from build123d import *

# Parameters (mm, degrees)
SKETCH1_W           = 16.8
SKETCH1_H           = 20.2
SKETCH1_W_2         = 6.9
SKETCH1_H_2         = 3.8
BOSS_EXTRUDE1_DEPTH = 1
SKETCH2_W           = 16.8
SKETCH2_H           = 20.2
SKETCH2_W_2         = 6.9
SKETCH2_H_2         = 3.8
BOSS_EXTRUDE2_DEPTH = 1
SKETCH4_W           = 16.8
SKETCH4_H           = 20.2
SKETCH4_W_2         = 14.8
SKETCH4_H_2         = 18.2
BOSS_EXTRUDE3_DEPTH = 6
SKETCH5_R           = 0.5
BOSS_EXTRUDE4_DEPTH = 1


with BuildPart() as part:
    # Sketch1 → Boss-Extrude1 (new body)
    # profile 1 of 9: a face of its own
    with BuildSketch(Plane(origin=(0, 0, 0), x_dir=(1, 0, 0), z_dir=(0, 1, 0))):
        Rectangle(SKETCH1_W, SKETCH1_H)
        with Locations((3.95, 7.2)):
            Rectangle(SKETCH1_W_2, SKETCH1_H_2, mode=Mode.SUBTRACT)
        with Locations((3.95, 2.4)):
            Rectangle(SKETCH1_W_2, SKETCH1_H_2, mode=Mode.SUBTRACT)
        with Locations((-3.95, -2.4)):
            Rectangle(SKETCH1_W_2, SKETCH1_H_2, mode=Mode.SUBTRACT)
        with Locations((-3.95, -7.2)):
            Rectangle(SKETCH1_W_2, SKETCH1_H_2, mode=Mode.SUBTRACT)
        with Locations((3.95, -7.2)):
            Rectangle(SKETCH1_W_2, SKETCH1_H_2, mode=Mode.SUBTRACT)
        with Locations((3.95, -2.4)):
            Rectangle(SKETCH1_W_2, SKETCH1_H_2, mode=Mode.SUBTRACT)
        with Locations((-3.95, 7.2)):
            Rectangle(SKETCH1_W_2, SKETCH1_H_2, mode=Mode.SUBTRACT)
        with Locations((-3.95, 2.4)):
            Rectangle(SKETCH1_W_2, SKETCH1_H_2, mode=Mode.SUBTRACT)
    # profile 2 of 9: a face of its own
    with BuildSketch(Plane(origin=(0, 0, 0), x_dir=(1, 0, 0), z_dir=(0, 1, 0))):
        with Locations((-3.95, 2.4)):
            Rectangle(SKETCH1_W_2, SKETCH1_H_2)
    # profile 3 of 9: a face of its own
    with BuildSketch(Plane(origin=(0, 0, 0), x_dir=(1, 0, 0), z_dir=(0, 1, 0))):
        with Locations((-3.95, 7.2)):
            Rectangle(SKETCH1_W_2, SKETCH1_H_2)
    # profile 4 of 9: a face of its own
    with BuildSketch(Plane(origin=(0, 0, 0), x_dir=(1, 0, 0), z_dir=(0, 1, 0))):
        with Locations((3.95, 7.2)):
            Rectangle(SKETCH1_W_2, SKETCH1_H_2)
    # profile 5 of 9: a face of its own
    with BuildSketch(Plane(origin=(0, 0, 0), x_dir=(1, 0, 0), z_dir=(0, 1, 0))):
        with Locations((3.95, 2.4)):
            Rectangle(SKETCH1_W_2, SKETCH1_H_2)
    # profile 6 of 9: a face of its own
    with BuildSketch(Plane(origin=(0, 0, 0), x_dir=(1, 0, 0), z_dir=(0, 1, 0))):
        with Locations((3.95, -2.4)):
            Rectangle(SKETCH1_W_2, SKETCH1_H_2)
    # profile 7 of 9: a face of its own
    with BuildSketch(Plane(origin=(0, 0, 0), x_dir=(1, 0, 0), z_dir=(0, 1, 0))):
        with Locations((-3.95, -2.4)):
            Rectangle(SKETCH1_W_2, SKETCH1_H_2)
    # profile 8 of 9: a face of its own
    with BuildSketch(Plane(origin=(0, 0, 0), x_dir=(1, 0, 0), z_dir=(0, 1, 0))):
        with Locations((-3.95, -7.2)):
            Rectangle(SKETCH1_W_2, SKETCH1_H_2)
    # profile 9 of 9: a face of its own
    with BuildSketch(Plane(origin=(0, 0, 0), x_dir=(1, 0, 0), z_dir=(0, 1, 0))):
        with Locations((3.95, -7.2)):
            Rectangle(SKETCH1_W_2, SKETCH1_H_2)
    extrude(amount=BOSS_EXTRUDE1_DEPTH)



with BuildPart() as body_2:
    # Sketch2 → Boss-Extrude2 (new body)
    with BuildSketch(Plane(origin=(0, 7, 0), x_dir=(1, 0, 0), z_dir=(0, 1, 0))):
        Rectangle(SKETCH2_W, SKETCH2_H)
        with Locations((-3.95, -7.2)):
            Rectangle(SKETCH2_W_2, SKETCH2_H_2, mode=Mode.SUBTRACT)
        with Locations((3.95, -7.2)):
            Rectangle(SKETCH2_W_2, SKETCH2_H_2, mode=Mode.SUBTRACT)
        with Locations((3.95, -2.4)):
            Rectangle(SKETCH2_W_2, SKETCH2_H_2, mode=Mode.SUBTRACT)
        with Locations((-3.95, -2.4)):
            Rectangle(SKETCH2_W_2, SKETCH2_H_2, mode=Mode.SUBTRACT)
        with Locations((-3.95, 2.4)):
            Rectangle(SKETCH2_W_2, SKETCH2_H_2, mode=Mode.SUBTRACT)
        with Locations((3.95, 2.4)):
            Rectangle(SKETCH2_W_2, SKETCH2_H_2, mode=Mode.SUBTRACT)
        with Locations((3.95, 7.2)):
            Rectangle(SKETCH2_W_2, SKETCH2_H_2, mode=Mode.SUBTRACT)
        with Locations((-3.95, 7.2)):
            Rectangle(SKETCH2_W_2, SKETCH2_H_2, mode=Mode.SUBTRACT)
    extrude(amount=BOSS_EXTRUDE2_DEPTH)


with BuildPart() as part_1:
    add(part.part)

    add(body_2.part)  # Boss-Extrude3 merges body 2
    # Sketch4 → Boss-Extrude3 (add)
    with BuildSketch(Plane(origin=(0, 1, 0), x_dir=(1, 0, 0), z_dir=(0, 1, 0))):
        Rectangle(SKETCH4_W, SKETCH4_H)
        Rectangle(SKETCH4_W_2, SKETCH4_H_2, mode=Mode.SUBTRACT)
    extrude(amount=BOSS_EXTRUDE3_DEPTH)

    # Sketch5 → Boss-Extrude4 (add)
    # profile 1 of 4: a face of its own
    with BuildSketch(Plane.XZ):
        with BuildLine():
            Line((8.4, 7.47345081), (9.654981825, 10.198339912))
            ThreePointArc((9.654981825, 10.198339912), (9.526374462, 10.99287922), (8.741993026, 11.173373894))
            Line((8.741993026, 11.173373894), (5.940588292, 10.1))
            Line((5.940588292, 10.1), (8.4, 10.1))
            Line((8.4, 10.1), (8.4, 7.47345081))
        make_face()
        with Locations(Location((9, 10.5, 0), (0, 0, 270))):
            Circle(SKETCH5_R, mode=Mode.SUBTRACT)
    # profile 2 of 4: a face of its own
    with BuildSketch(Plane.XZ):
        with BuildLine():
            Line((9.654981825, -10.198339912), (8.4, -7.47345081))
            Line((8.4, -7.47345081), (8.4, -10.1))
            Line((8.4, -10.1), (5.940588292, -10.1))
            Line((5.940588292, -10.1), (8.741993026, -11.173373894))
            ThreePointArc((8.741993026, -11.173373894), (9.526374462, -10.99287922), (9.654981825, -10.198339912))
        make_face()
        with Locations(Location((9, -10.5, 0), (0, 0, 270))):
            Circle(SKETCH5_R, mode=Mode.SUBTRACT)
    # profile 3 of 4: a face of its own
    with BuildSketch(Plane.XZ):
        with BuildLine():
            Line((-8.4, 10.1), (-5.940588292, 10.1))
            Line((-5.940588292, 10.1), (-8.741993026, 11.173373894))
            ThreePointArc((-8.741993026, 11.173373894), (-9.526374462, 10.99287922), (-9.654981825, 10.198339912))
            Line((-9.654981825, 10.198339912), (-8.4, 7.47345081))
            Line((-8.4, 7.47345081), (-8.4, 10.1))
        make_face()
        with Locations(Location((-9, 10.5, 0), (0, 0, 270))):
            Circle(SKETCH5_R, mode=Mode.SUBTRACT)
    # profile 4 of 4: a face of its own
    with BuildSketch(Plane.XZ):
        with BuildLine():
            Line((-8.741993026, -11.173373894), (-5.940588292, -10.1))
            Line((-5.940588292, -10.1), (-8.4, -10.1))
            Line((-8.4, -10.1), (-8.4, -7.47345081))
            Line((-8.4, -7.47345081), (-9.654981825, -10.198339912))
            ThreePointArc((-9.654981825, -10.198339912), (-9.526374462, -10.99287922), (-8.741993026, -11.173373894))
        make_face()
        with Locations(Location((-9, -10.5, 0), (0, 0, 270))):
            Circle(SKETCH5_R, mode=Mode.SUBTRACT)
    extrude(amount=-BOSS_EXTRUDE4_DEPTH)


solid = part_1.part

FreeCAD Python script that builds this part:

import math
import FreeCAD as App
import Part
import Sketcher

doc = App.newDocument("Part")
body = doc.addObject("PartDesign::Body", "Body")

sketch1 = body.newObject("Sketcher::SketchObject", "Sketch")
sketch1.AttachmentSupport = (doc.getObject("XZ_Plane"), [""])
sketch1.MapMode = "FlatFace"
sketch1.addGeometry([
    Part.LineSegment(App.Vector(-8, -10, 0), App.Vector(-8, 10, 0)),
    Part.LineSegment(App.Vector(-8, 10, 0), App.Vector(8, 10, 0)),
    Part.LineSegment(App.Vector(8, 10, 0), App.Vector(8, -10, 0)),
    Part.LineSegment(App.Vector(8, -10, 0), App.Vector(-8, -10, 0)),
], False)
sketch1.addConstraint([
    Sketcher.Constraint("Coincident", 0, 2, 1, 1),
    Sketcher.Constraint("Coincident", 1, 2, 2, 1),
    Sketcher.Constraint("Coincident", 2, 2, 3, 1),
    Sketcher.Constraint("Coincident", 3, 2, 0, 1),
    Sketcher.Constraint("Vertical", 0),
    Sketcher.Constraint("Horizontal", 1),
    Sketcher.Constraint("Vertical", 2),
    Sketcher.Constraint("Horizontal", 3),
    Sketcher.Constraint("Symmetric", 0, 2, 2, 2, -1, 1),
    Sketcher.Constraint("DistanceX", 1, 1, 1, 2, 16.8),
    Sketcher.Constraint("DistanceY", 0, 1, 0, 2, 20.2),
])
pad1 = body.newObject("PartDesign::Pad", "Pad")
pad1.Profile = sketch1
pad1.Length = 1
pad1.Reversed = True
body2 = doc.addObject("PartDesign::Body", "Body001")

sketch2 = body2.newObject("Sketcher::SketchObject", "Sketch001")
sketch2.AttachmentSupport = (doc.getObject("XZ_Plane001"), [""])
sketch2.MapMode = "FlatFace"
sketch2.AttachmentOffset = App.Placement(App.Vector(0, 0, -7), App.Rotation())
sketch2.addGeometry([
    Part.LineSegment(App.Vector(-8.4, -10.1, 0), App.Vector(-8.4, 10.1, 0)),
    Part.LineSegment(App.Vector(-8.4, 10.1, 0), App.Vector(8.4, 10.1, 0)),
    Part.LineSegment(App.Vector(8.4, 10.1, 0), App.Vector(8.4, -10.1, 0)),
    Part.LineSegment(App.Vector(8.4, -10.1, 0), App.Vector(-8.4, -10.1, 0)),
    Part.LineSegment(App.Vector(-0.5, 9.1, 0), App.Vector(-7.4, 9.1, 0)),
    Part.LineSegment(App.Vector(-7.4, 9.1, 0), App.Vector(-7.4, 5.3, 0)),
    Part.LineSegment(App.Vector(-7.4, 5.3, 0), App.Vector(-0.5, 5.3, 0)),
    Part.LineSegment(App.Vector(-0.5, 5.3, 0), App.Vector(-0.5, 9.1, 0)),
    Part.LineSegment(App.Vector(-0.5, 4.3, 0), App.Vector(-7.4, 4.3, 0)),
    Part.LineSegment(App.Vector(-7.4, 4.3, 0), App.Vector(-7.4, 0.5, 0)),
    Part.LineSegment(App.Vector(-7.4, 0.5, 0), App.Vector(-0.5, 0.5, 0)),
    Part.LineSegment(App.Vector(-0.5, 0.5, 0), App.Vector(-0.5, 4.3, 0)),
    Part.LineSegment(App.Vector(7.4, 9.1, 0), App.Vector(0.5, 9.1, 0)),
    Part.LineSegment(App.Vector(0.5, 9.1, 0), App.Vector(0.5, 5.3, 0)),
    Part.LineSegment(App.Vector(0.5, 5.3, 0), App.Vector(7.4, 5.3, 0)),
    Part.LineSegment(App.Vector(7.4, 5.3, 0), App.Vector(7.4, 9.1, 0)),
    Part.LineSegment(App.Vector(7.4, 4.3, 0), App.Vector(0.5, 4.3, 0)),
    Part.LineSegment(App.Vector(0.5, 4.3, 0), App.Vector(0.5, 0.5, 0)),
    Part.LineSegment(App.Vector(0.5, 0.5, 0), App.Vector(7.4, 0.5, 0)),
    Part.LineSegment(App.Vector(7.4, 0.5, 0), App.Vector(7.4, 4.3, 0)),
    Part.LineSegment(App.Vector(-0.5, -0.5, 0), App.Vector(-7.4, -0.5, 0)),
    Part.LineSegment(App.Vector(-7.4, -0.5, 0), App.Vector(-7.4, -4.3, 0)),
    Part.LineSegment(App.Vector(-7.4, -4.3, 0), App.Vector(-0.5, -4.3, 0)),
    Part.LineSegment(App.Vector(-0.5, -4.3, 0), App.Vector(-0.5, -0.5, 0)),
    Part.LineSegment(App.Vector(-0.5, -5.3, 0), App.Vector(-7.4, -5.3, 0)),
    Part.LineSegment(App.Vector(-7.4, -5.3, 0), App.Vector(-7.4, -9.1, 0)),
    Part.LineSegment(App.Vector(-7.4, -9.1, 0), App.Vector(-0.5, -9.1, 0)),
    Part.LineSegment(App.Vector(-0.5, -9.1, 0), App.Vector(-0.5, -5.3, 0)),
    Part.LineSegment(App.Vector(7.4, -0.5, 0), App.Vector(0.5, -0.5, 0)),
    Part.LineSegment(App.Vector(0.5, -0.5, 0), App.Vector(0.5, -4.3, 0)),
    Part.LineSegment(App.Vector(0.5, -4.3, 0), App.Vector(7.4, -4.3, 0)),
    Part.LineSegment(App.Vector(7.4, -4.3, 0), App.Vector(7.4, -0.5, 0)),
    Part.LineSegment(App.Vector(7.4, -5.3, 0), App.Vector(0.5, -5.3, 0)),
    Part.LineSegment(App.Vector(0.5, -5.3, 0), App.Vector(0.5, -9.1, 0)),
    Part.LineSegment(App.Vector(0.5, -9.1, 0), App.Vector(7.4, -9.1, 0)),
    Part.LineSegment(App.Vector(7.4, -9.1, 0), App.Vector(7.4, -5.3, 0)),
], False)
sketch2.addConstraint([
    Sketcher.Constraint("Coincident", 0, 2, 1, 1),
    Sketcher.Constraint("Coincident", 1, 2, 2, 1),
    Sketcher.Constraint("Coincident", 2, 2, 3, 1),
    Sketcher.Constraint("Coincident", 3, 2, 0, 1),
    Sketcher.Constraint("Coincident", 4, 2, 5, 1),
    Sketcher.Constraint("Coincident", 5, 2, 6, 1),
    Sketcher.Constraint("Coincident", 6, 2, 7, 1),
    Sketcher.Constraint("Coincident", 7, 2, 4, 1),
    Sketcher.Constraint("Coincident", 8, 2, 9, 1),
    Sketcher.Constraint("Coincident", 9, 2, 10, 1),
    Sketcher.Constraint("Coincident", 10, 2, 11, 1),
    Sketcher.Constraint("Coincident", 11, 2, 8, 1),
    Sketcher.Constraint("Coincident", 12, 2, 13, 1),
    Sketcher.Constraint("Coincident", 13, 2, 14, 1),
    Sketcher.Constraint("Coincident", 14, 2, 15, 1),
    Sketcher.Constraint("Coincident", 15, 2, 12, 1),
    Sketcher.Constraint("Coincident", 16, 2, 17, 1),
    Sketcher.Constraint("Coincident", 17, 2, 18, 1),
    Sketcher.Constraint("Coincident", 18, 2, 19, 1),
    Sketcher.Constraint("Coincident", 19, 2, 16, 1),
    Sketcher.Constraint("Coincident", 20, 2, 21, 1),
    Sketcher.Constraint("Coincident", 21, 2, 22, 1),
    Sketcher.Constraint("Coincident", 22, 2, 23, 1),
    Sketcher.Constraint("Coincident", 23, 2, 20, 1),
    Sketcher.Constraint("Coincident", 24, 2, 25, 1),
    Sketcher.Constraint("Coincident", 25, 2, 26, 1),
    Sketcher.Constraint("Coincident", 26, 2, 27, 1),
    Sketcher.Constraint("Coincident", 27, 2, 24, 1),
    Sketcher.Constraint("Coincident", 28, 2, 29, 1),
    Sketcher.Constraint("Coincident", 29, 2, 30, 1),
    Sketcher.Constraint("Coincident", 30, 2, 31, 1),
    Sketcher.Constraint("Coincident", 31, 2, 28, 1),
    Sketcher.Constraint("Coincident", 32, 2, 33, 1),
    Sketcher.Constraint("Coincident", 33, 2, 34, 1),
    Sketcher.Constraint("Coincident", 34, 2, 35, 1),
    Sketcher.Constraint("Coincident", 35, 2, 32, 1),
    Sketcher.Constraint("Vertical", 0),
    Sketcher.Constraint("Horizontal", 1),
    Sketcher.Constraint("Vertical", 2),
    Sketcher.Constraint("Horizontal", 3),
    Sketcher.Constraint("Horizontal", 4),
    Sketcher.Constraint("Vertical", 5),
    Sketcher.Constraint("Horizontal", 6),
    Sketcher.Constraint("Vertical", 7),
    Sketcher.Constraint("Horizontal", 8),
    Sketcher.Constraint("Vertical", 9),
    Sketcher.Constraint("Horizontal", 10),
    Sketcher.Constraint("Vertical", 11),
    Sketcher.Constraint("Horizontal", 12),
    Sketcher.Constraint("Vertical", 13),
    Sketcher.Constraint("Horizontal", 14),
    Sketcher.Constraint("Vertical", 15),
    Sketcher.Constraint("Horizontal", 16),
    Sketcher.Constraint("Vertical", 17),
    Sketcher.Constraint("Horizontal", 18),
    Sketcher.Constraint("Vertical", 19),
    Sketcher.Constraint("Horizontal", 20),
    Sketcher.Constraint("Vertical", 21),
    Sketcher.Constraint("Horizontal", 22),
    Sketcher.Constraint("Vertical", 23),
    Sketcher.Constraint("Horizontal", 24),
    Sketcher.Constraint("Vertical", 25),
    Sketcher.Constraint("Horizontal", 26),
    Sketcher.Constraint("Vertical", 27),
    Sketcher.Constraint("Horizontal", 28),
    Sketcher.Constraint("Vertical", 29),
    Sketcher.Constraint("Horizontal", 30),
    Sketcher.Constraint("Vertical", 31),
    Sketcher.Constraint("Horizontal", 32),
    Sketcher.Constraint("Vertical", 33),
    Sketcher.Constraint("Horizontal", 34),
    Sketcher.Constraint("Vertical", 35),
    Sketcher.Constraint("Symmetric", 0, 2, 2, 2, -1, 1),
    Sketcher.Constraint("Symmetric", 18, 2, 20, 2, -1, 1),
    Sketcher.Constraint("Symmetric", 16, 2, 22, 2, -1, 1),
    Sketcher.Constraint("Symmetric", 14, 2, 24, 2, -1, 1),
    Sketcher.Constraint("Symmetric", 12, 2, 26, 2, -1, 1),
    Sketcher.Constraint("Symmetric", 10, 2, 28, 2, -1, 1),
    Sketcher.Constraint("Symmetric", 8, 2, 30, 2, -1, 1),
    Sketcher.Constraint("Symmetric", 6, 2, 32, 2, -1, 1),
    Sketcher.Constraint("Symmetric", 4, 2, 34, 2, -1, 1),
    Sketcher.Constraint("Symmetric", 7, 2, 12, 2, -2),
    Sketcher.Constraint("Symmetric", 5, 2, 14, 2, -2),
    Sketcher.Constraint("Symmetric", 11, 2, 16, 2, -2),
    Sketcher.Constraint("Symmetric", 9, 2, 18, 2, -2),
    Sketcher.Constraint("Vertical", 5, 2, 8, 2),
    Sketcher.Constraint("Vertical", 7, 2, 10, 2),
    Sketcher.Constraint("Equal", 7, 9),
    Sketcher.Constraint("DistanceX", 1, 1, 1, 2, 16.8),
    Sketcher.Constraint("DistanceX", 4, 2, 4, 1, 6.9),
    Sketcher.Constraint("DistanceY", 0, 1, 0, 2, 20.2),
    Sketcher.Constraint("DistanceY", 5, 2, 5, 1, 3.8),
    Sketcher.Constraint("DistanceX", 0, 2, 4, 2, 1.0),
    Sketcher.Constraint("DistanceY", 4, 2, 0, 2, 1.0),
    Sketcher.Constraint("DistanceY", 8, 2, 5, 2, 1.0),
])
pad2 = body2.newObject("PartDesign::Pad", "Pad001")
pad2.Profile = sketch2
pad2.Length = 1
pad2.Reversed = True
body.AllowCompound = True
doc.recompute()

boolean = body.newObject("PartDesign::Boolean", "Boolean")
boolean.Type = "Fuse"
boolean.addObjects([body2])

sketch3 = body.newObject("Sketcher::SketchObject", "Sketch002")
sketch3.AttachmentSupport = (doc.getObject("XZ_Plane"), [""])
sketch3.MapMode = "FlatFace"
sketch3.AttachmentOffset = App.Placement(App.Vector(0, 0, -1), App.Rotation())
sketch3.addGeometry([
    Part.LineSegment(App.Vector(-8, -10, 0), App.Vector(-8, 10, 0)),
    Part.LineSegment(App.Vector(-8, 10, 0), App.Vector(8, 10, 0)),
    Part.LineSegment(App.Vector(8, 10, 0), App.Vector(8, -10, 0)),
    Part.LineSegment(App.Vector(8, -10, 0), App.Vector(-8, -10, 0)),
    Part.LineSegment(App.Vector(7, 9, 0), App.Vector(-7, 9, 0)),
    Part.LineSegment(App.Vector(-7, 9, 0), App.Vector(-7, -9, 0)),
    Part.LineSegment(App.Vector(-7, -9, 0), App.Vector(7, -9, 0)),
    Part.LineSegment(App.Vector(7, -9, 0), App.Vector(7, 9, 0)),
], False)
sketch3.addConstraint([
    Sketcher.Constraint("Coincident", 0, 2, 1, 1),
    Sketcher.Constraint("Coincident", 1, 2, 2, 1),
    Sketcher.Constraint("Coincident", 2, 2, 3, 1),
    Sketcher.Constraint("Coincident", 3, 2, 0, 1),
    Sketcher.Constraint("Coincident", 4, 2, 5, 1),
    Sketcher.Constraint("Coincident", 5, 2, 6, 1),
    Sketcher.Constraint("Coincident", 6, 2, 7, 1),
    Sketcher.Constraint("Coincident", 7, 2, 4, 1),
    Sketcher.Constraint("Vertical", 0),
    Sketcher.Constraint("Horizontal", 1),
    Sketcher.Constraint("Vertical", 2),
    Sketcher.Constraint("Horizontal", 3),
    Sketcher.Constraint("Horizontal", 4),
    Sketcher.Constraint("Vertical", 5),
    Sketcher.Constraint("Horizontal", 6),
    Sketcher.Constraint("Vertical", 7),
    Sketcher.Constraint("Symmetric", 0, 2, 2, 2, -1, 1),
    Sketcher.Constraint("Symmetric", 4, 2, 6, 2, -1, 1),
    Sketcher.Constraint("DistanceX", 1, 1, 1, 2, 16.8),
    Sketcher.Constraint("DistanceX", 4, 2, 4, 1, 14.8),
    Sketcher.Constraint("DistanceY", 0, 1, 0, 2, 20.2),
    Sketcher.Constraint("DistanceY", 5, 2, 5, 1, 18.2),
])
pad3 = body.newObject("PartDesign::Pad", "Pad002")
pad3.Profile = sketch3
pad3.Length = 6
pad3.Reversed = True

sketch4 = body.newObject("Sketcher::SketchObject", "Sketch003")
sketch4.AttachmentSupport = (doc.getObject("XZ_Plane"), [""])
sketch4.MapMode = "FlatFace"
sketch4.addGeometry([
    Part.LineSegment(App.Vector(8.4, 7.5, 0), App.Vector(9.7, 10.2, 0)),
    Part.ArcOfCircle(Part.Circle(App.Vector(9, 10.5, 0), App.Vector(0, 0, 1), 0.7), math.radians(-25), math.radians(111)),
    Part.LineSegment(App.Vector(8.7, 11.2, 0), App.Vector(5.9, 10.1, 0)),
    Part.LineSegment(App.Vector(5.9, 10.1, 0), App.Vector(8.4, 10.1, 0)),
    Part.LineSegment(App.Vector(8.4, 10.1, 0), App.Vector(8.4, 7.5, 0)),
    Part.Circle(App.Vector(9, 10.5, 0), App.Vector(0, 0, 1), 0.5),
    Part.LineSegment(App.Vector(9.7, -10.2, 0), App.Vector(8.4, -7.5, 0)),
    Part.LineSegment(App.Vector(8.4, -7.5, 0), App.Vector(8.4, -10.1, 0)),
    Part.LineSegment(App.Vector(8.4, -10.1, 0), App.Vector(5.9, -10.1, 0)),
    Part.LineSegment(App.Vector(5.9, -10.1, 0), App.Vector(8.7, -11.2, 0)),
    Part.ArcOfCircle(Part.Circle(App.Vector(9, -10.5, 0), App.Vector(0, 0, 1), 0.7), math.radians(-111), math.radians(25)),
    Part.Circle(App.Vector(9, -10.5, 0), App.Vector(0, 0, 1), 0.5),
    Part.LineSegment(App.Vector(-8.4, 10.1, 0), App.Vector(-5.9, 10.1, 0)),
    Part.LineSegment(App.Vector(-5.9, 10.1, 0), App.Vector(-8.7, 11.2, 0)),
    Part.ArcOfCircle(Part.Circle(App.Vector(-9, 10.5, 0), App.Vector(0, 0, 1), 0.7), math.radians(69), math.radians(205)),
    Part.LineSegment(App.Vector(-9.7, 10.2, 0), App.Vector(-8.4, 7.5, 0)),
    Part.LineSegment(App.Vector(-8.4, 7.5, 0), App.Vector(-8.4, 10.1, 0)),
    Part.Circle(App.Vector(-9, 10.5, 0), App.Vector(0, 0, 1), 0.5),
    Part.LineSegment(App.Vector(-8.7, -11.2, 0), App.Vector(-5.9, -10.1, 0)),
    Part.LineSegment(App.Vector(-5.9, -10.1, 0), App.Vector(-8.4, -10.1, 0)),
    Part.LineSegment(App.Vector(-8.4, -10.1, 0), App.Vector(-8.4, -7.5, 0)),
    Part.LineSegment(App.Vector(-8.4, -7.5, 0), App.Vector(-9.7, -10.2, 0)),
    Part.ArcOfCircle(Part.Circle(App.Vector(-9, -10.5, 0), App.Vector(0, 0, 1), 0.7), math.radians(155), math.radians(291)),
    Part.Circle(App.Vector(-9, -10.5, 0), App.Vector(0, 0, 1), 0.5),
], False)
sketch4.addConstraint([
    Sketcher.Constraint("Tangent", 0, 2, 1, 1),
    Sketcher.Constraint("Tangent", 1, 2, 2, 1),
    Sketcher.Constraint("Coincident", 2, 2, 3, 1),
    Sketcher.Constraint("Coincident", 3, 2, 4, 1),
    Sketcher.Constraint("Coincident", 4, 2, 0, 1),
    Sketcher.Constraint("Coincident", 6, 2, 7, 1),
    Sketcher.Constraint("Coincident", 7, 2, 8, 1),
    Sketcher.Constraint("Coincident", 8, 2, 9, 1),
    Sketcher.Constraint("Tangent", 9, 2, 10, 1),
    Sketcher.Constraint("Tangent", 10, 2, 6, 1),
    Sketcher.Constraint("Coincident", 12, 2, 13, 1),
    Sketcher.Constraint("Tangent", 13, 2, 14, 1),
    Sketcher.Constraint("Tangent", 14, 2, 15, 1),
    Sketcher.Constraint("Coincident", 15, 2, 16, 1),
    Sketcher.Constraint("Coincident", 16, 2, 12, 1),
    Sketcher.Constraint("Coincident", 18, 2, 19, 1),
    Sketcher.Constraint("Coincident", 19, 2, 20, 1),
    Sketcher.Constraint("Coincident", 20, 2, 21, 1),
    Sketcher.Constraint("Tangent", 21, 2, 22, 1),
    Sketcher.Constraint("Tangent", 22, 2, 18, 1),
    Sketcher.Constraint("Horizontal", 3),
    Sketcher.Constraint("Vertical", 4),
    Sketcher.Constraint("Vertical", 7),
    Sketcher.Constraint("Horizontal", 8),
    Sketcher.Constraint("Horizontal", 12),
    Sketcher.Constraint("Vertical", 16),
    Sketcher.Constraint("Horizontal", 19),
    Sketcher.Constraint("Vertical", 20),
    Sketcher.Constraint("Coincident", 5, 3, 1, 3),
    Sketcher.Constraint("Coincident", 11, 3, 10, 3),
    Sketcher.Constraint("Coincident", 17, 3, 14, 3),
    Sketcher.Constraint("Coincident", 23, 3, 22, 3),
    Sketcher.Constraint("Equal", 1, 10),
    Sketcher.Constraint("Equal", 5, 11),
    Sketcher.Constraint("Equal", 10, 14),
    Sketcher.Constraint("Equal", 11, 17),
    Sketcher.Constraint("Equal", 14, 22),
    Sketcher.Constraint("Equal", 17, 23),
    Sketcher.Constraint("Symmetric", 10, 3, 14, 3, -1, 1),
    Sketcher.Constraint("Symmetric", 1, 3, 22, 3, -1, 1),
    Sketcher.Constraint("Symmetric", 8, 2, 12, 2, -1, 1),
    Sketcher.Constraint("Symmetric", 6, 2, 15, 2, -1, 1),
    Sketcher.Constraint("Symmetric", 2, 2, 18, 2, -1, 1),
    Sketcher.Constraint("Symmetric", 4, 2, 20, 2, -1, 1),
    Sketcher.Constraint("Symmetric", 1, 3, 14, 3, -2),
    Sketcher.Constraint("Symmetric", 2, 2, 12, 2, -2),
    Sketcher.Constraint("Symmetric", 4, 2, 15, 2, -2),
    Sketcher.Constraint("Equal", 0, 2),
    Sketcher.Constraint("Diameter", 5, 1.0),
    Sketcher.Constraint("Distance", 0, 3.0),
    Sketcher.Constraint("DistanceX", -1, 1, 1, 3, 9.0),
    Sketcher.Constraint("DistanceY", 10, 3, 1, 3, 21.0),
    Sketcher.Constraint("DistanceY", -1, 1, 2, 2, 10.1),
    Sketcher.Constraint("DistanceX", -1, 1, 3, 2, 8.4),
    Sketcher.Constraint("Radius", 1, 0.72111),
])
pad4 = body.newObject("PartDesign::Pad", "Pad003")
pad4.Profile = sketch4
pad4.Length = 1
pad4.Reversed = True

doc.recompute()
